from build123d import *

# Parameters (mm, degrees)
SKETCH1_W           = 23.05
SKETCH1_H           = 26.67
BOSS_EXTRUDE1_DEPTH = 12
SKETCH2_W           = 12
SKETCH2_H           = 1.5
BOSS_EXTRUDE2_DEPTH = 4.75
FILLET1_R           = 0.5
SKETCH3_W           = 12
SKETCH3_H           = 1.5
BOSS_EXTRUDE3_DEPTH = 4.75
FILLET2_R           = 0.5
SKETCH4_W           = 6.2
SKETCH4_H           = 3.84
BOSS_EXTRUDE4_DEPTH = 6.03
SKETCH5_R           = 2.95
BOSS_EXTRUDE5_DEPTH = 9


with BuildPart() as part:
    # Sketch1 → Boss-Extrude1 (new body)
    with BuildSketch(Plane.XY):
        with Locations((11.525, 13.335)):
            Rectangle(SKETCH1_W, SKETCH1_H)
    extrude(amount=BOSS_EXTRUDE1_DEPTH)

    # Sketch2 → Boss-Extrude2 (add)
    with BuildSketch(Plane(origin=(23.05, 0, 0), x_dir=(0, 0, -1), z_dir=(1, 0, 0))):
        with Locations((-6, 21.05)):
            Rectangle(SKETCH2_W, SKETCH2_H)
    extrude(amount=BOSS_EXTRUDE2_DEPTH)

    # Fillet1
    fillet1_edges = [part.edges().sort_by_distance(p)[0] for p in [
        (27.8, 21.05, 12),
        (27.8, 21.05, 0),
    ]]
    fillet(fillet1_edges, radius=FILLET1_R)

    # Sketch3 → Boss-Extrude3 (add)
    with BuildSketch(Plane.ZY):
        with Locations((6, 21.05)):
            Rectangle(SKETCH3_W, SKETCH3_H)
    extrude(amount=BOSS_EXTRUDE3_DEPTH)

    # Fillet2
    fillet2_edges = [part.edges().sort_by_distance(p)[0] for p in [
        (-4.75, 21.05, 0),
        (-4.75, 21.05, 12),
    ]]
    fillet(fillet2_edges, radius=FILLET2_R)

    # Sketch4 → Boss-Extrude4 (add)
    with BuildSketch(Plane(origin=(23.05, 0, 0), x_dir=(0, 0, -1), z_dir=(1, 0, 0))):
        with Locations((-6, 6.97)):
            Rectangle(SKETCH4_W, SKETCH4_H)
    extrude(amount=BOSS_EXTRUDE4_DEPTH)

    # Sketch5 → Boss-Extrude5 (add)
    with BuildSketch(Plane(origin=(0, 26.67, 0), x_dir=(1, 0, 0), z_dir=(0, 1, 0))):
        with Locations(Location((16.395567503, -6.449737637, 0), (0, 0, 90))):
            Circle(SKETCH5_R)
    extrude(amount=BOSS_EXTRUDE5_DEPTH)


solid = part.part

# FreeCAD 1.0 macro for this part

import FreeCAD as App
import Part
import Sketcher


def edges_at(feature, points):
    """Names of the edges that pass closest to the given points."""
    edges = feature.Shape.Edges
    near = lambda p: min(range(len(edges)), key=lambda i: edges[i].distToShape(Part.Vertex(*p))[0])
    return sorted({f"Edge{near(p) + 1}" for p in points})


def add_polygon(sketch, points):
    """Adds a closed chain of lines whose ends are joined by coincident constraints."""
    first, n = sketch.GeometryCount, len(points)
    for a, b in zip(points, points[1:] + points[:1]):
        sketch.addGeometry(Part.LineSegment(App.Vector(*a, 0), App.Vector(*b, 0)), False)
    for i in range(n):
        sketch.addConstraint(Sketcher.Constraint("Coincident", first + i, 2, first + (i + 1) % n, 1))

doc = App.newDocument("Part")
body = doc.addObject("PartDesign::Body", "Body")

# Sketch on XY plane
sketch1 = body.newObject("Sketcher::SketchObject", "Sketch")
sketch1.AttachmentSupport = (doc.getObject("XY_Plane"), [""])
sketch1.MapMode = "FlatFace"
add_polygon(sketch1, [(0, 27), (0, 0), (23, 0), (23, 27)])  # lines 0-3
sketch1.addConstraint([
    Sketcher.Constraint("Vertical", 0),
    Sketcher.Constraint("Horizontal", 1),
    Sketcher.Constraint("Vertical", 2),
    Sketcher.Constraint("Horizontal", 3),
    Sketcher.Constraint("Coincident", 0, 2, -1, 1),
    Sketcher.Constraint("DistanceX", 1, 1, 1, 2, 23.05),
    Sketcher.Constraint("DistanceY", 0, 2, 0, 1, 26.67),
])
pad1 = body.newObject("PartDesign::Pad", "Pad")
pad1.Profile = sketch1
pad1.Length = 12

# Sketch on YZ plane
sketch2 = body.newObject("Sketcher::SketchObject", "Sketch001")
sketch2.AttachmentSupport = (doc.getObject("YZ_Plane"), [""])
sketch2.MapMode = "FlatFace"
sketch2.AttachmentOffset = App.Placement(App.Vector(0, 0, 23.05), App.Rotation())
add_polygon(sketch2, [(21.8, 12), (20.3, 12), (20.3, 0), (21.8, 0)])  # lines 0-3
sketch2.addConstraint([
    Sketcher.Constraint("Horizontal", 0),
    Sketcher.Constraint("Vertical", 1),
    Sketcher.Constraint("Horizontal", 2),
    Sketcher.Constraint("Vertical", 3),
    Sketcher.Constraint("PointOnObject", 1, 2, -1),
    Sketcher.Constraint("DistanceY", 1, 2, 1, 1, 12.0),
    Sketcher.Constraint("DistanceX", 0, 2, 0, 1, 1.5),
    Sketcher.Constraint("DistanceX", -1, 1, 0, 2, 20.3),
])
pad2 = body.newObject("PartDesign::Pad", "Pad001")
pad2.Profile = sketch2
pad2.Length = 4.75
doc.recompute()

fillet = body.newObject("PartDesign::Fillet", "Fillet")
fillet.Base = (pad2, edges_at(pad2, [(27.8, 21.05, 12), (27.8, 21.05, 0)]))
fillet.Radius = 0.5

# Sketch on YZ plane
sketch3 = body.newObject("Sketcher::SketchObject", "Sketch002")
sketch3.AttachmentSupport = (doc.getObject("YZ_Plane"), [""])
sketch3.MapMode = "FlatFace"
add_polygon(sketch3, [(21.8, 0), (20.3, 0), (20.3, 12), (21.8, 12)])  # lines 0-3
sketch3.addConstraint([
    Sketcher.Constraint("Horizontal", 0),
    Sketcher.Constraint("Vertical", 1),
    Sketcher.Constraint("Horizontal", 2),
    Sketcher.Constraint("Vertical", 3),
    Sketcher.Constraint("PointOnObject", 0, 2, -1),
    Sketcher.Constraint("DistanceY", 1, 1, 1, 2, 12.0),
    Sketcher.Constraint("DistanceX", 0, 2, 0, 1, 1.5),
    Sketcher.Constraint("DistanceX", -1, 1, 0, 2, 20.3),
])
pad3 = body.newObject("PartDesign::Pad", "Pad002")
pad3.Profile = sketch3
pad3.Length = 4.75
pad3.Reversed = True
doc.recompute()

fillet2 = body.newObject("PartDesign::Fillet", "Fillet001")
fillet2.Base = (pad3, edges_at(pad3, [(-4.75, 21.05, 0), (-4.75, 21.05, 12)]))
fillet2.Radius = 0.5

# Sketch on YZ plane
sketch4 = body.newObject("Sketcher::SketchObject", "Sketch003")
sketch4.AttachmentSupport = (doc.getObject("YZ_Plane"), [""])
sketch4.MapMode = "FlatFace"
sketch4.AttachmentOffset = App.Placement(App.Vector(0, 0, 23.05), App.Rotation())
add_polygon(sketch4, [(8.9, 9.1), (5, 9.1), (5, 2.9), (8.9, 2.9)])  # lines 0-3
sketch4.addConstraint([
    Sketcher.Constraint("Horizontal", 0),
    Sketcher.Constraint("Vertical", 1),
    Sketcher.Constraint("Horizontal", 2),
    Sketcher.Constraint("Vertical", 3),
    Sketcher.Constraint("DistanceY", 1, 2, 1, 1, 6.2),
    Sketcher.Constraint("DistanceX", 0, 2, 0, 1, 3.84),
    Sketcher.Constraint("DistanceY", -1, 1, 0, 2, 9.1),
    Sketcher.Constraint("DistanceX", -1, 1, 0, 2, 5.05),
])
pad4 = body.newObject("PartDesign::Pad", "Pad003")
pad4.Profile = sketch4
pad4.Length = 6.03

# Sketch on XZ plane
sketch5 = body.newObject("Sketcher::SketchObject", "Sketch004")
sketch5.AttachmentSupport = (doc.getObject("XZ_Plane"), [""])
sketch5.MapMode = "FlatFace"
sketch5.AttachmentOffset = App.Placement(App.Vector(0, 0, -26.67), App.Rotation())
sketch5.addGeometry(Part.Circle(App.Vector(16.4, 6.4, 0), App.Vector(0, 0, 1), 3), False)
sketch5.addConstraint([
    Sketcher.Constraint("Diameter", 0, 5.9),
    Sketcher.Constraint("DistanceX", -1, 1, 0, 3, 16.395568),
    Sketcher.Constraint("DistanceY", -1, 1, 0, 3, 6.449738),
])
pad5 = body.newObject("PartDesign::Pad", "Pad004")
pad5.Profile = sketch5
pad5.Length = 9
pad5.Reversed = True

doc.recompute()
